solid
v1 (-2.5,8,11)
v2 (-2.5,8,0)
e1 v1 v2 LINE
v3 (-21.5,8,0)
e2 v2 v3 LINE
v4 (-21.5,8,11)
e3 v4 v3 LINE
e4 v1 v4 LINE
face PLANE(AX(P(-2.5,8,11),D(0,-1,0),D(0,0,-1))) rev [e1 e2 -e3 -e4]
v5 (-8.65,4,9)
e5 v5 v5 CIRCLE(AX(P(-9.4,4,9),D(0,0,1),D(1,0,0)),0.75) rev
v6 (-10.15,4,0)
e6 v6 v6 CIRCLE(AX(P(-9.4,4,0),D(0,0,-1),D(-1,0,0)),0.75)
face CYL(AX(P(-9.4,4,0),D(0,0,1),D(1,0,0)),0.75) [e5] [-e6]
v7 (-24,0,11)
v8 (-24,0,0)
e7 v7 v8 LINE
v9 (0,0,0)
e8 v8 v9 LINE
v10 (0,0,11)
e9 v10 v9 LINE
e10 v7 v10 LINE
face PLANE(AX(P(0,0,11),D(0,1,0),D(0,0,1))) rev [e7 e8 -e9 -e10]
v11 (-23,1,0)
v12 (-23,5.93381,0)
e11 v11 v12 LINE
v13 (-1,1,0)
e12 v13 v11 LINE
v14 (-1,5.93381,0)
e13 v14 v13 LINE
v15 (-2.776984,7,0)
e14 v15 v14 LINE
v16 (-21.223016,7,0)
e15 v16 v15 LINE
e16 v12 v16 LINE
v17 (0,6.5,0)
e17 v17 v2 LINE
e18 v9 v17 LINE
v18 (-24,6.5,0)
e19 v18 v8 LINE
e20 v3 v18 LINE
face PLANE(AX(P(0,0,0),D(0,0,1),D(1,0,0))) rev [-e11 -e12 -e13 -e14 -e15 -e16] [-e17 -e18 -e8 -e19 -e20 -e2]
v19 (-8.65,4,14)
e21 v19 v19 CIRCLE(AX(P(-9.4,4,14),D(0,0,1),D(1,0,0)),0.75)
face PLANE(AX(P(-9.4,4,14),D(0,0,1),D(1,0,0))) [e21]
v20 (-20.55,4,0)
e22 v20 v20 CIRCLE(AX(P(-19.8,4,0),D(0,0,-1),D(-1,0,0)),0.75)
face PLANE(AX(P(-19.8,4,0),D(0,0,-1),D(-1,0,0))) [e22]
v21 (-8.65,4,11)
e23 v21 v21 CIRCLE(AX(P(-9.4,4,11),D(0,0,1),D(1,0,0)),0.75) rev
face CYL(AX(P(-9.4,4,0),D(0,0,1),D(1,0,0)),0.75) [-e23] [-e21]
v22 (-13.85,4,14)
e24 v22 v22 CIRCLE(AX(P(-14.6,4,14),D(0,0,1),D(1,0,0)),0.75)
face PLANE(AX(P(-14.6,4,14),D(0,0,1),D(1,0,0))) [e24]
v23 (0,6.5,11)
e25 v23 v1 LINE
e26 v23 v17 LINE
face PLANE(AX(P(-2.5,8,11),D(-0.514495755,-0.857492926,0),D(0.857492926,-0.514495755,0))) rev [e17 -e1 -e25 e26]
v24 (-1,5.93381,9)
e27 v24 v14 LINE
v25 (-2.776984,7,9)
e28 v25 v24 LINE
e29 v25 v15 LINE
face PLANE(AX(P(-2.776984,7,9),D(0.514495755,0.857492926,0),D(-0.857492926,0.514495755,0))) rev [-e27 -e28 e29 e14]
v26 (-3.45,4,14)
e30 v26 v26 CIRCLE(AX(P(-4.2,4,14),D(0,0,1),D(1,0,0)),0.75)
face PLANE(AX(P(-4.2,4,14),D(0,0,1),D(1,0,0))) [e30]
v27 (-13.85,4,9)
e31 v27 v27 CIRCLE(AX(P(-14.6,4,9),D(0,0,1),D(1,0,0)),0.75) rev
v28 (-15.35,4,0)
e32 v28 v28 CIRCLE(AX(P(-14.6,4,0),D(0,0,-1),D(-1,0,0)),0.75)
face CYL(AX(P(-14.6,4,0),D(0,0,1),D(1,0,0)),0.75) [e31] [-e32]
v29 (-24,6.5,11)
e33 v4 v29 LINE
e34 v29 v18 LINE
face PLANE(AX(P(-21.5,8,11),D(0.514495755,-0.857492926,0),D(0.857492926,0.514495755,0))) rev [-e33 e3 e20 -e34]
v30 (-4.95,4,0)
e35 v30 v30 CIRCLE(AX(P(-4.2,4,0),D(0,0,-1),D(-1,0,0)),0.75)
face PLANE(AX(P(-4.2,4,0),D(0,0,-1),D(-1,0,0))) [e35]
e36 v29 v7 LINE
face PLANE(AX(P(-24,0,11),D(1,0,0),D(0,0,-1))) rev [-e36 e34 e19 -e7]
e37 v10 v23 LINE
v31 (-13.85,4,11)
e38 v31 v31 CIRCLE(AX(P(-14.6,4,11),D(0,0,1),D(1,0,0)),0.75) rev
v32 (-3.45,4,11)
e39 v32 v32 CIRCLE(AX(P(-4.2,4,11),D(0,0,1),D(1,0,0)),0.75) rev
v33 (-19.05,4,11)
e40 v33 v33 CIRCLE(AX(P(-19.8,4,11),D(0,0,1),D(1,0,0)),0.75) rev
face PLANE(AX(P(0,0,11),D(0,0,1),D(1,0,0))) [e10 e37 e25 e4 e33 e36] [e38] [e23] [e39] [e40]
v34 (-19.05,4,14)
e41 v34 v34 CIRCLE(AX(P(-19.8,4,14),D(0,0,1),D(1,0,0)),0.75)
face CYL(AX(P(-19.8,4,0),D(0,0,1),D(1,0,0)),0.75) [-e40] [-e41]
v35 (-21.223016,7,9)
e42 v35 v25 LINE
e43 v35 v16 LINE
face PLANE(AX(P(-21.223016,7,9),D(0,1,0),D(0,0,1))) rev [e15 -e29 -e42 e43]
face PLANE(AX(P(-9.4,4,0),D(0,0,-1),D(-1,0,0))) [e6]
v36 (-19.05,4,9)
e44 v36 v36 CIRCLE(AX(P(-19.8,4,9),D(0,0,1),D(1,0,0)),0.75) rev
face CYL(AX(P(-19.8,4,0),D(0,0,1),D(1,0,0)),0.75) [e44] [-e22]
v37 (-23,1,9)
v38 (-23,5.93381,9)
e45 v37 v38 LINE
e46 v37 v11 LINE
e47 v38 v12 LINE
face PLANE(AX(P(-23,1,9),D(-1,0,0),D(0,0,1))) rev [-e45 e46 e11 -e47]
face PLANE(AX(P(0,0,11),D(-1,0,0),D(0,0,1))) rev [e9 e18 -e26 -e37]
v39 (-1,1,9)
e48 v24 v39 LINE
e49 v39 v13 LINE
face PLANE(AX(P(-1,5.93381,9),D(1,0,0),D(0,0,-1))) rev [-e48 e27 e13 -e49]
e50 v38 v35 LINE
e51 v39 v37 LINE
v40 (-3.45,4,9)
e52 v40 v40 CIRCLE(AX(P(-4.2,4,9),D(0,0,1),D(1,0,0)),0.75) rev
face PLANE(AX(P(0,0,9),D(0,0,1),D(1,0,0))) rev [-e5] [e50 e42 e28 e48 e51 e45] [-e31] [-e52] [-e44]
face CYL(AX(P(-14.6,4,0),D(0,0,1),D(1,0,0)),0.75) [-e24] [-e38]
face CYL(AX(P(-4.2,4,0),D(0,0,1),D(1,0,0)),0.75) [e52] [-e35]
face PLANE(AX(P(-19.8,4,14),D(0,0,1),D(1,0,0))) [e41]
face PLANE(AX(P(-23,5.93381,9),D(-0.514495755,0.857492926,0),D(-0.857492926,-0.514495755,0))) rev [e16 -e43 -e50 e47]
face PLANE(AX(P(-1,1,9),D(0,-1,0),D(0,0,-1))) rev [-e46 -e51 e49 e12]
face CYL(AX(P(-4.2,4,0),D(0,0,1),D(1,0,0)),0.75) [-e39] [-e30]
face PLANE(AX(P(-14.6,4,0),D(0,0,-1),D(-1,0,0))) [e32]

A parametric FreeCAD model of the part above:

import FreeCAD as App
import Part
import Sketcher

V = App.Vector
Q = App.Units.Quantity

doc = App.newDocument("Part")
body = doc.addObject("PartDesign::Body", "Body")

# Sketch on XY plane
sketch1 = doc.addObject("Sketcher::SketchObject", "Sketch")
body.addObject(sketch1)
sketch1.AttachmentSupport = (doc.XY_Plane, [""])
sketch1.MapMode = "FlatFace"
sketch1.addGeometry([
    Part.LineSegment(V(-24, 0, 0), V(0, 0, 0)),  # 0
    Part.LineSegment(V(0, 0, 0), V(0, 6.5, 0)),  # 1
    Part.LineSegment(V(0, 6.5, 0), V(-2.5, 8, 0)),  # 2
    Part.LineSegment(V(-2.5, 8, 0), V(-21.5, 8, 0)),  # 3
    Part.LineSegment(V(-21.5, 8, 0), V(-24, 6.5, 0)),  # 4
    Part.LineSegment(V(-24, 6.5, 0), V(-24, 0, 0)),  # 5
], False)
sketch1.addConstraint([
    Sketcher.Constraint("Coincident", 0, 2, 1, 1),
    Sketcher.Constraint("Coincident", 1, 2, 2, 1),
    Sketcher.Constraint("Coincident", 2, 2, 3, 1),
    Sketcher.Constraint("Coincident", 3, 2, 4, 1),
    Sketcher.Constraint("Coincident", 4, 2, 5, 1),
    Sketcher.Constraint("Coincident", 5, 2, 0, 1),
    Sketcher.Constraint("Horizontal", 0),
    Sketcher.Constraint("Vertical", 1),
    Sketcher.Constraint("Horizontal", 3),
    Sketcher.Constraint("Vertical", 5),
    Sketcher.Constraint("Coincident", 0, 2, -1, 1),
    Sketcher.Constraint("Horizontal", 1, 2, 4, 2),
    Sketcher.Constraint("Equal", 2, 4),
    Sketcher.Constraint("DistanceX", 0, 1, 0, 2, Q("24 mm")),
    Sketcher.Constraint("DistanceX", 3, 2, 3, 1, Q("19 mm")),
    Sketcher.Constraint("DistanceY", 1, 1, 1, 2, Q("6.5 mm")),
    Sketcher.Constraint("DistanceY", -1, 1, 2, 2, Q("8 mm")),
])
pad1 = doc.addObject("PartDesign::Pad", "Pad")
body.addObject(pad1)
pad1.Profile = sketch1
pad1.Length = 11

# Sketch on XY plane
sketch2 = doc.addObject("Sketcher::SketchObject", "Sketch001")
body.addObject(sketch2)
sketch2.AttachmentSupport = (doc.XY_Plane, [""])
sketch2.MapMode = "FlatFace"
sketch2.addGeometry([
    Part.LineSegment(V(-1, 5.9, 0), V(-1, 1, 0)),  # 0
    Part.LineSegment(V(-1, 1, 0), V(-23, 1, 0)),  # 1
    Part.LineSegment(V(-23, 1, 0), V(-23, 5.9, 0)),  # 2
    Part.LineSegment(V(-23, 5.9, 0), V(-21.2, 7, 0)),  # 3
    Part.LineSegment(V(-21.2, 7, 0), V(-2.8, 7, 0)),  # 4
    Part.LineSegment(V(-2.8, 7, 0), V(-1, 5.9, 0)),  # 5
], False)
sketch2.addConstraint([
    Sketcher.Constraint("Coincident", 0, 2, 1, 1),
    Sketcher.Constraint("Coincident", 1, 2, 2, 1),
    Sketcher.Constraint("Coincident", 2, 2, 3, 1),
    Sketcher.Constraint("Coincident", 3, 2, 4, 1),
    Sketcher.Constraint("Coincident", 4, 2, 5, 1),
    Sketcher.Constraint("Coincident", 5, 2, 0, 1),
    Sketcher.Constraint("Vertical", 0),
    Sketcher.Constraint("Horizontal", 1),
    Sketcher.Constraint("Vertical", 2),
    Sketcher.Constraint("Horizontal", 4),
    Sketcher.Constraint("Horizontal", 2, 2, 5, 2),
    Sketcher.Constraint("Equal", 3, 5),
    Sketcher.Constraint("DistanceX", 1, 2, 1, 1, Q("22 mm")),
    Sketcher.Constraint("DistanceX", 0, 2, -1, 1, Q("1 mm")),
    Sketcher.Constraint("DistanceY", -1, 1, 0, 2, Q("1 mm")),
    Sketcher.Constraint("DistanceY", -1, 1, 3, 2, Q("7 mm")),
    Sketcher.Constraint("Distance", 3, Q("2.072302 mm")),
    Sketcher.Constraint("DistanceY", 0, 2, 0, 1, Q("4.93381 mm")),
])
pocket1 = doc.addObject("PartDesign::Pocket", "Pocket")
body.addObject(pocket1)
pocket1.Profile = sketch2
pocket1.Length = 9
pocket1.Reversed = True

# Sketch on XY plane
sketch3 = doc.addObject("Sketcher::SketchObject", "Sketch002")
body.addObject(sketch3)
sketch3.AttachmentSupport = (doc.XY_Plane, [""])
sketch3.MapMode = "FlatFace"
sketch3.AttachmentOffset = App.Placement(V(0, 0, 9), App.Rotation())
sketch3.addGeometry(Part.Circle(V(-4.2, 4, 0), V(0, 0, 1), 0.8), False)
sketch3.addConstraint([
    Sketcher.Constraint("Diameter", 0, Q("1.5 mm")),
    Sketcher.Constraint("DistanceY", -1, 1, 0, 3, Q("4 mm")),
    Sketcher.Constraint("DistanceX", 0, 3, -1, 1, Q("4.2 mm")),
])
pad2 = doc.addObject("PartDesign::Pad", "Pad001")
body.addObject(pad2)
pad2.Profile = sketch3
pad2.Length = 18
pad2.Midplane = True

# Sketch on XY plane
sketch4 = doc.addObject("Sketcher::SketchObject", "Sketch003")
body.addObject(sketch4)
sketch4.AttachmentSupport = (doc.XY_Plane, [""])
sketch4.MapMode = "FlatFace"
sketch4.AttachmentOffset = App.Placement(V(0, 0, 18), App.Rotation())
sketch4.addGeometry(Part.Circle(V(-4.2, 4, 0), V(0, 0, 1), 1.8), False)
sketch4.addConstraint([
    Sketcher.Constraint("DistanceY", -1, 1, 0, 3, Q("4 mm")),
    Sketcher.Constraint("DistanceX", 0, 3, -1, 1, Q("4.2 mm")),
    Sketcher.Constraint("Diameter", 0, Q("3.546259 mm")),
])
pocket2 = doc.addObject("PartDesign::Pocket", "Pocket001")
body.addObject(pocket2)
pocket2.Profile = sketch4
pocket2.Length = 4
doc.recompute()

linearpattern = doc.addObject("PartDesign::LinearPattern", "LinearPattern")
body.addObject(linearpattern)
linearpattern.Originals = [pad2, pocket2]
linearpattern.Direction = (doc.X_Axis, [""])
linearpattern.Mode = "offset"
linearpattern.Offset = 5.2
linearpattern.Occurrences = 4
linearpattern.Reversed = True
body.Tip = linearpattern

doc.recompute()
